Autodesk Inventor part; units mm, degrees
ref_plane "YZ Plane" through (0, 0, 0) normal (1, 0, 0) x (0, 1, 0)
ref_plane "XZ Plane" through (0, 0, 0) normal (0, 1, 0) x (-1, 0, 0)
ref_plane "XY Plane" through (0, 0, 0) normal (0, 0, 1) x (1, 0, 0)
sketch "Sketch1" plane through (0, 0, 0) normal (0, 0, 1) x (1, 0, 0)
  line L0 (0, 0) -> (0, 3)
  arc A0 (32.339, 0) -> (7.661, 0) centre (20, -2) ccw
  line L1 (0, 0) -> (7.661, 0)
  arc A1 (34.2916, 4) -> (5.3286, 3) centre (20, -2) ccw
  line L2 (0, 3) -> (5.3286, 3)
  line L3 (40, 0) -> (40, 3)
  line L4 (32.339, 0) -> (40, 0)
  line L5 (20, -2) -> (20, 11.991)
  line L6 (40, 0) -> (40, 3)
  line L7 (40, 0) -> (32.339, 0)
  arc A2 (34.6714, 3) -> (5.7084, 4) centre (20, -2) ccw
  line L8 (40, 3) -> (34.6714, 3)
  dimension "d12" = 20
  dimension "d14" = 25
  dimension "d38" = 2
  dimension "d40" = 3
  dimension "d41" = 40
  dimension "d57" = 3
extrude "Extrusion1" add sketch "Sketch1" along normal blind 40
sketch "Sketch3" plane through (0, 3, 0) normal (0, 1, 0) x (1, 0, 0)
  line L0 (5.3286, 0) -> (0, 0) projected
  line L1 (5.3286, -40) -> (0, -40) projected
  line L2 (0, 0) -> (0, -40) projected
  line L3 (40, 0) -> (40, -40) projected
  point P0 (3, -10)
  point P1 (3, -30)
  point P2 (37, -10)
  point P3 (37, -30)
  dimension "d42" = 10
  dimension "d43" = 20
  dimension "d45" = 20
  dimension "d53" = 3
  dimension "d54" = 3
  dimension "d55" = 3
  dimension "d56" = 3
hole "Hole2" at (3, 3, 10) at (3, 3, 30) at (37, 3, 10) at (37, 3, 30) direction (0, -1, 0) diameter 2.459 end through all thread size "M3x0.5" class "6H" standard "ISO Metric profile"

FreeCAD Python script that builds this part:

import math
import FreeCAD as App
import Part
import Sketcher
from FreeCAD import Vector

doc = App.newDocument("Part")
body = doc.addObject("PartDesign::Body", "Body")

# Sketch on XY plane
sketch1 = body.newObject("Sketcher::SketchObject", "Sketch")
sketch1.AttachmentSupport = (doc.getObject("XY_Plane"), [""])
sketch1.MapMode = "FlatFace"
sketch1.addGeometry(Part.LineSegment(Vector(0, 3, 0), Vector(0, 0, 0)), False)
sketch1.addGeometry(Part.LineSegment(Vector(0, 0, 0), Vector(7.7, 0, 0)), False)
sketch1.addGeometry(Part.ArcOfCircle(Part.Circle(Vector(20, -2, 0), Vector(0, 0, 1), 12.5), math.radians(9), math.radians(171)), False)
sketch1.addGeometry(Part.LineSegment(Vector(32.3, 0, 0), Vector(40, 0, 0)), False)
sketch1.addGeometry(Part.LineSegment(Vector(40, 0, 0), Vector(40, 3, 0)), False)
sketch1.addGeometry(Part.LineSegment(Vector(40, 3, 0), Vector(34.7, 3, 0)), False)
sketch1.addGeometry(Part.ArcOfCircle(Part.Circle(Vector(20, -2, 0), Vector(0, 0, 1), 15.5), math.radians(18.82), math.radians(22.77)), False)
sketch1.addGeometry(Part.ArcOfCircle(Part.Circle(Vector(20, -2, 0), Vector(0, 0, 1), 15.5), math.radians(23), math.radians(161)), False)
sketch1.addGeometry(Part.LineSegment(Vector(5.3, 3, 0), Vector(0, 3, 0)), False)
sketch1.addConstraint(Sketcher.Constraint("Coincident", 0, 2, 1, 1))
sketch1.addConstraint(Sketcher.Constraint("Coincident", 1, 2, 2, 2))
sketch1.addConstraint(Sketcher.Constraint("Coincident", 2, 1, 3, 1))
sketch1.addConstraint(Sketcher.Constraint("Coincident", 3, 2, 4, 1))
sketch1.addConstraint(Sketcher.Constraint("Coincident", 4, 2, 5, 1))
sketch1.addConstraint(Sketcher.Constraint("Coincident", 5, 2, 6, 1))
sketch1.addConstraint(Sketcher.Constraint("Tangent", 6, 2, 7, 1))
sketch1.addConstraint(Sketcher.Constraint("Coincident", 7, 2, 8, 1))
sketch1.addConstraint(Sketcher.Constraint("Coincident", 8, 2, 0, 1))
sketch1.addConstraint(Sketcher.Constraint("Vertical", 0))
sketch1.addConstraint(Sketcher.Constraint("Horizontal", 1))
sketch1.addConstraint(Sketcher.Constraint("Horizontal", 3))
sketch1.addConstraint(Sketcher.Constraint("Vertical", 4))
sketch1.addConstraint(Sketcher.Constraint("Horizontal", 5))
sketch1.addConstraint(Sketcher.Constraint("Horizontal", 8))
sketch1.addConstraint(Sketcher.Constraint("Coincident", 0, 2, -1, 1))
sketch1.addConstraint(Sketcher.Constraint("Coincident", 6, 3, 2, 3))
sketch1.addConstraint(Sketcher.Constraint("Equal", 6, 7))
sketch1.addConstraint(Sketcher.Constraint("PointOnObject", 2, 1, -1))
sketch1.addConstraint(Sketcher.Constraint("Horizontal", 5, 2, 7, 2))
sketch1.addConstraint(Sketcher.Constraint("Equal", 1, 3))
sketch1.addConstraint(Sketcher.Constraint("Radius", 2, 12.5))
sketch1.addConstraint(Sketcher.Constraint("DistanceY", 0, 2, 0, 1, 3.0))
sketch1.addConstraint(Sketcher.Constraint("DistanceX", -1, 1, 2, 3, 20.0))
sketch1.addConstraint(Sketcher.Constraint("DistanceY", 2, 3, -1, 1, 2.0))
sketch1.addConstraint(Sketcher.Constraint("Radius", 6, 15.5))
sketch1.addConstraint(Sketcher.Constraint("DistanceY", -1, 1, 6, 2, 4.0))
pad1 = body.newObject("PartDesign::Pad", "Pad")
pad1.Profile = sketch1
pad1.Length = 40

# Sketch on XZ plane
sketch2 = body.newObject("Sketcher::SketchObject", "Sketch001")
sketch2.AttachmentSupport = (doc.getObject("XZ_Plane"), [""])
sketch2.MapMode = "FlatFace"
sketch2.AttachmentOffset = App.Placement(Vector(0, 0, -3), App.Rotation())
sketch2.addGeometry(Part.Circle(Vector(3, 10, 0), Vector(0, 0, 1), 1.2), False)
sketch2.addGeometry(Part.Circle(Vector(3, 30, 0), Vector(0, 0, 1), 1.2), False)
sketch2.addGeometry(Part.Circle(Vector(37, 10, 0), Vector(0, 0, 1), 1.2), False)
sketch2.addGeometry(Part.Circle(Vector(37, 30, 0), Vector(0, 0, 1), 1.2), False)
sketch2.addConstraint(Sketcher.Constraint("Equal", 0, 1))
sketch2.addConstraint(Sketcher.Constraint("Equal", 1, 2))
sketch2.addConstraint(Sketcher.Constraint("Equal", 2, 3))
sketch2.addConstraint(Sketcher.Constraint("Horizontal", 0, 3, 2, 3))
sketch2.addConstraint(Sketcher.Constraint("Horizontal", 1, 3, 3, 3))
sketch2.addConstraint(Sketcher.Constraint("Vertical", 0, 3, 1, 3))
sketch2.addConstraint(Sketcher.Constraint("Vertical", 2, 3, 3, 3))
sketch2.addConstraint(Sketcher.Constraint("Diameter", 0, 2.459))
sketch2.addConstraint(Sketcher.Constraint("DistanceX", -1, 1, 0, 3, 3.0))
sketch2.addConstraint(Sketcher.Constraint("DistanceY", -1, 1, 0, 3, 10.0))
sketch2.addConstraint(Sketcher.Constraint("DistanceY", -1, 1, 1, 3, 30.0))
sketch2.addConstraint(Sketcher.Constraint("DistanceX", -1, 1, 2, 3, 37.0))
doc.recompute()
hole = body.newObject("PartDesign::Hole", "Hole")
hole.Profile = sketch2
hole.ThreadType = "None"
hole.Diameter = 2.459
hole.DepthType = "ThroughAll"
hole.Reversed = True

doc.recompute()
